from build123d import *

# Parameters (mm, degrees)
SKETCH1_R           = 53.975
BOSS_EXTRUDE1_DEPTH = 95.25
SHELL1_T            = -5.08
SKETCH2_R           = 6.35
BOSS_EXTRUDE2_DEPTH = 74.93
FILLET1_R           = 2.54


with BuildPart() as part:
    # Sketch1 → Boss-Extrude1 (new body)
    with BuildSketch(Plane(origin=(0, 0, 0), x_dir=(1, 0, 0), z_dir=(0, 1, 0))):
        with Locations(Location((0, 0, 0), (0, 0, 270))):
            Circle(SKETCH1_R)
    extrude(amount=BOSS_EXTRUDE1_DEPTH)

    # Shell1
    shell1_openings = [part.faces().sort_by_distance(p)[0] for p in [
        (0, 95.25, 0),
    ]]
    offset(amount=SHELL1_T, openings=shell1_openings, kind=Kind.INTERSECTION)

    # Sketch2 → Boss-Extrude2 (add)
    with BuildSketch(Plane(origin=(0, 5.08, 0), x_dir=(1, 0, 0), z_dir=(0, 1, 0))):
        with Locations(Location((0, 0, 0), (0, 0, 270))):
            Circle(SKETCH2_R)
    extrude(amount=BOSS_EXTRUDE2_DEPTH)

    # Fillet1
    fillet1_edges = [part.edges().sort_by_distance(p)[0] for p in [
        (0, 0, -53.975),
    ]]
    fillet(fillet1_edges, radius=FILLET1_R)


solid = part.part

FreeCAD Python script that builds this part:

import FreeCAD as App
import Part
import Sketcher

V = App.Vector
Q = App.Units.Quantity


def edges_at(feature, points):
    """Names of the edges that pass closest to the given points."""
    edges = feature.Shape.Edges
    near = lambda p: min(range(len(edges)), key=lambda i: edges[i].distToShape(Part.Vertex(*p))[0])
    return sorted({f"Edge{near(p) + 1}" for p in points})


def faces_at(feature, points):
    """Names of the faces that lie closest to the given points."""
    faces = feature.Shape.Faces
    near = lambda p: min(range(len(faces)), key=lambda i: faces[i].distToShape(Part.Vertex(*p))[0])
    return sorted({f"Face{near(p) + 1}" for p in points})

doc = App.newDocument("Part")
body = doc.addObject("PartDesign::Body", "Body")

# Sketch on XZ plane
sketch1 = body.newObject("Sketcher::SketchObject", "Sketch")
sketch1.AttachmentSupport = (doc.getObject("XZ_Plane"), [""])
sketch1.MapMode = "FlatFace"
sketch1.addGeometry(Part.Circle(V(0, 0, 0), V(0, 0, 1), 54), False)
sketch1.addConstraint([
    Sketcher.Constraint("Coincident", 0, 3, -1, 1),
    Sketcher.Constraint("Diameter", 0, Q("4.25 in")),
])
pad1 = body.newObject("PartDesign::Pad", "Pad")
pad1.Profile = sketch1
pad1.Length = Q("3.75 in")
pad1.Reversed = True
doc.recompute()

thickness = body.newObject("PartDesign::Thickness", "Thickness")
thickness.Base = (pad1, faces_at(pad1, [(0, 95.25, 0)]))
thickness.Value = Q("0.2 in")
thickness.Reversed = True
thickness.Join = "Intersection"

# Sketch on XZ plane
sketch2 = body.newObject("Sketcher::SketchObject", "Sketch001")
sketch2.AttachmentSupport = (doc.getObject("XZ_Plane"), [""])
sketch2.MapMode = "FlatFace"
sketch2.AttachmentOffset = App.Placement(V(0, 0, -0.2 * 25.4), App.Rotation())
sketch2.addGeometry(Part.Circle(V(0, 0, 0), V(0, 0, 1), 6), False)
sketch2.addConstraint([
    Sketcher.Constraint("Coincident", 0, 3, -1, 1),
    Sketcher.Constraint("Diameter", 0, Q("0.5 in")),
])
pad2 = body.newObject("PartDesign::Pad", "Pad001")
pad2.Profile = sketch2
pad2.Length = Q("2.95 in")
pad2.Reversed = True
doc.recompute()

fillet = body.newObject("PartDesign::Fillet", "Fillet")
fillet.Base = (pad2, edges_at(pad2, [(0, 0, -53.975)]))
fillet.Radius = Q("0.1 in")

doc.recompute()
